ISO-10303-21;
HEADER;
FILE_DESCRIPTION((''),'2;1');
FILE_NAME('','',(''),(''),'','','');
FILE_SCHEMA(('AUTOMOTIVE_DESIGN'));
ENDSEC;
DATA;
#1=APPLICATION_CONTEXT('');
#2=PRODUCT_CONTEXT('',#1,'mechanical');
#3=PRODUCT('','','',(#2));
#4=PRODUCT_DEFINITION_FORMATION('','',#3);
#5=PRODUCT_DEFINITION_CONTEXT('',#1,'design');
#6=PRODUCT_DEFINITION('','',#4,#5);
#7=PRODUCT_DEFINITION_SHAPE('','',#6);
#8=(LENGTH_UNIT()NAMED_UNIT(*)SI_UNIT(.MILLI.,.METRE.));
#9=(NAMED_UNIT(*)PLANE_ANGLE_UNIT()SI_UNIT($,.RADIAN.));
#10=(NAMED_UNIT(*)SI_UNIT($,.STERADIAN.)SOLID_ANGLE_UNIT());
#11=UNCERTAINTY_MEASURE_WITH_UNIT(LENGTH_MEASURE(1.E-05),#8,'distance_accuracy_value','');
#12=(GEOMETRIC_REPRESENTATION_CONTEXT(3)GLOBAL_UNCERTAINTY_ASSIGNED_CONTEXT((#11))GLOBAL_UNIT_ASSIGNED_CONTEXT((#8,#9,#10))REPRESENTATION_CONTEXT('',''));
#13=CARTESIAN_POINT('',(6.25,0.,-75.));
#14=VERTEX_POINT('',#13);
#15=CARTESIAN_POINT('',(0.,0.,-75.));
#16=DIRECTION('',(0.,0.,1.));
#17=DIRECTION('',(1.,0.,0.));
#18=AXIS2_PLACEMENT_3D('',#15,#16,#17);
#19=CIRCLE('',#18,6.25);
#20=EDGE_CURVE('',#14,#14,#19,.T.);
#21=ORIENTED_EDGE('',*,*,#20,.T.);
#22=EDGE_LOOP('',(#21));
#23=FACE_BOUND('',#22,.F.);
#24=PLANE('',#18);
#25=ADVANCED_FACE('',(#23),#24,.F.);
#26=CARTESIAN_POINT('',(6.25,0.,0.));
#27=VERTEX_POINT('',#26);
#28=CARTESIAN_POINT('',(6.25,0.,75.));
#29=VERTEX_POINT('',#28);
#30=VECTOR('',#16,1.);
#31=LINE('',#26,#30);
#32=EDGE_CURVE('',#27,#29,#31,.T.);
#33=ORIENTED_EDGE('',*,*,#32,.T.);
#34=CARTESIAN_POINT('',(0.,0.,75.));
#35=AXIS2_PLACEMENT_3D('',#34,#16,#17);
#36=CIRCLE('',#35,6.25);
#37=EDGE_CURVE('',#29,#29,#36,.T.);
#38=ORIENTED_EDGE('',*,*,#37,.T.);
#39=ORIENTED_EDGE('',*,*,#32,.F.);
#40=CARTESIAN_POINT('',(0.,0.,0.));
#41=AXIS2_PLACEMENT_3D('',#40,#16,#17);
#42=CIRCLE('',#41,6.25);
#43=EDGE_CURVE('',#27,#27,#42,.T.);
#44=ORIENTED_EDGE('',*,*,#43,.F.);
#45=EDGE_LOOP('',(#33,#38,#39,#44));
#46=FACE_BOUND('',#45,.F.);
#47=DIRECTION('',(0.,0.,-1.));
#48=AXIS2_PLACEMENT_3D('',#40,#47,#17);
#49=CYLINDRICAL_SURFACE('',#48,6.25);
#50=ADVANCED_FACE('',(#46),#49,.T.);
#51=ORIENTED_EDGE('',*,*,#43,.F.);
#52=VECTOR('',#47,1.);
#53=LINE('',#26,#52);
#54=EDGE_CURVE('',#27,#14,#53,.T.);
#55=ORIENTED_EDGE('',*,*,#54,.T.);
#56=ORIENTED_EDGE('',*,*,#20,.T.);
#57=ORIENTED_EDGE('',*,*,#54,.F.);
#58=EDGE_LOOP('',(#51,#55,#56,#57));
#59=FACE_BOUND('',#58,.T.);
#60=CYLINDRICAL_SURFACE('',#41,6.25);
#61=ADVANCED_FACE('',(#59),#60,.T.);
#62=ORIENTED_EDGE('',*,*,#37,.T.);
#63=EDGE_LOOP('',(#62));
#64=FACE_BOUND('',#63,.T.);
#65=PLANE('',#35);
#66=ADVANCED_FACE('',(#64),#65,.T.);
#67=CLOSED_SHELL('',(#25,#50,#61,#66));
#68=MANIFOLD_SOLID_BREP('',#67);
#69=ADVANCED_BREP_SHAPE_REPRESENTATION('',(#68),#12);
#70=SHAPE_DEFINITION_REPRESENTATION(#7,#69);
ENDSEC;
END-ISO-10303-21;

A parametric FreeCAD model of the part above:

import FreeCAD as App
import Part
import Sketcher

V = App.Vector
Q = App.Units.Quantity

doc = App.newDocument("Part")
body = doc.addObject("PartDesign::Body", "Body")

sketch1 = body.newObject("Sketcher::SketchObject", "Sketch")
sketch1.AttachmentSupport = (doc.getObject("XY_Plane"), [""])
sketch1.MapMode = "FlatFace"
sketch1.addGeometry(Part.Circle(V(0, 0, 0), V(0, 0, 1), 6.25), False)
sketch1.addConstraint([
    Sketcher.Constraint("Coincident", 0, 3, -1, 1),
    Sketcher.Constraint("Diameter", 0, Q("12.5 mm")),
])
pad1 = body.newObject("PartDesign::Pad", "Pad")
pad1.Profile = sketch1
pad1.Length = 150
pad1.Midplane = True

doc.recompute()
